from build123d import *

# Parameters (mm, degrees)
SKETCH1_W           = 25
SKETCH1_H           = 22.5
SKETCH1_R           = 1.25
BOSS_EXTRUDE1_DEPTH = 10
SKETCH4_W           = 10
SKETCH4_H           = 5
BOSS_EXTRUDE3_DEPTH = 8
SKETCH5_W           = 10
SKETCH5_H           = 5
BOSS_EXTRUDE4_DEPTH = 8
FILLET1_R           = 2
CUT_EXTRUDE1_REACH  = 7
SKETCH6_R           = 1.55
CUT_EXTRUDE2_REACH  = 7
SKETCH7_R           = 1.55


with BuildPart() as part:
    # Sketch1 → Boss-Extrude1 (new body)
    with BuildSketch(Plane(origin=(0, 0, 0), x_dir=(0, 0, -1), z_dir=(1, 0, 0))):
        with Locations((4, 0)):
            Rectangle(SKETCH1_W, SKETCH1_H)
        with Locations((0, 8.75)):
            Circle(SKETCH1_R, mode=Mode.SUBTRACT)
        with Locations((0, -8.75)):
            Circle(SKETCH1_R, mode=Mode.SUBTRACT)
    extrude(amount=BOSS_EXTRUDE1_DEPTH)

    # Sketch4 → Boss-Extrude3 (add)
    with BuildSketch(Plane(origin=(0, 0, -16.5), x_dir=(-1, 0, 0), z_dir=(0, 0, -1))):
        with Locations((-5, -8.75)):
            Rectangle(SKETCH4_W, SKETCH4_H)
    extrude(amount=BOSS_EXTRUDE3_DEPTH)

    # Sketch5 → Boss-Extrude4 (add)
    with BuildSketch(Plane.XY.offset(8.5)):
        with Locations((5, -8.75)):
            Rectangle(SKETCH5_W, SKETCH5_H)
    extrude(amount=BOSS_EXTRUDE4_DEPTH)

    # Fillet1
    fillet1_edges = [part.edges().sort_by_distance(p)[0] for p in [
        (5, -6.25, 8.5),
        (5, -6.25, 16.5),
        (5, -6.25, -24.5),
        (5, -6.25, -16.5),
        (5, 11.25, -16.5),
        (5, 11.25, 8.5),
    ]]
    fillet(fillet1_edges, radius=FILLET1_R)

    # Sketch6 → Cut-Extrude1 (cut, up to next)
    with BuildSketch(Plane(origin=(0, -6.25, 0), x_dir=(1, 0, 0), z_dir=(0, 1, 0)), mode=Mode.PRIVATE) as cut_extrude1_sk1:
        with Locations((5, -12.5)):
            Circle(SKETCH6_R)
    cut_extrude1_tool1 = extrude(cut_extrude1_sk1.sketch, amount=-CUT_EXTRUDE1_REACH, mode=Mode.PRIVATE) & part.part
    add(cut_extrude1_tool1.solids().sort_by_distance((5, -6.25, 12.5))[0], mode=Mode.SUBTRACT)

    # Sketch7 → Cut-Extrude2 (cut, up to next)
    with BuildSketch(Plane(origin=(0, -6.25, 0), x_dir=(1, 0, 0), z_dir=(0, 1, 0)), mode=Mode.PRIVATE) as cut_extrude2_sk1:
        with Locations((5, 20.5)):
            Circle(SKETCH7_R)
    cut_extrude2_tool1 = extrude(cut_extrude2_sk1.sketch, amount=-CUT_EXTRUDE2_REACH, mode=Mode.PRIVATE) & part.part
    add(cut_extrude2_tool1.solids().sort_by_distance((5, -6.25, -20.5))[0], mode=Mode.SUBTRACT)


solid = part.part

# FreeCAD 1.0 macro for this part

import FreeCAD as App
import Part
import Sketcher
Q = App.Units.Quantity


def edges_at(feature, points):
    """Names of the edges that pass closest to the given points."""
    edges = feature.Shape.Edges
    near = lambda p: min(range(len(edges)), key=lambda i: edges[i].distToShape(Part.Vertex(*p))[0])
    return sorted({f"Edge{near(p) + 1}" for p in points})


def add_polygon(sketch, points):
    """Adds a closed chain of lines whose ends are joined by coincident constraints."""
    first, n = sketch.GeometryCount, len(points)
    for a, b in zip(points, points[1:] + points[:1]):
        sketch.addGeometry(Part.LineSegment(App.Vector(*a, 0), App.Vector(*b, 0)), False)
    for i in range(n):
        sketch.addConstraint(Sketcher.Constraint("Coincident", first + i, 2, first + (i + 1) % n, 1))

doc = App.newDocument("Part")
body = doc.addObject("PartDesign::Body", "Body")

# Sketch on YZ plane
sketch1 = body.newObject("Sketcher::SketchObject", "Sketch")
sketch1.AttachmentSupport = (doc.getObject("YZ_Plane"), [""])
sketch1.MapMode = "FlatFace"
add_polygon(sketch1, [(11.25, 8.5), (-11.25, 8.5), (-11.25, -16.5), (11.25, -16.5)])  # lines 0-3
sketch1.addGeometry(Part.Circle(App.Vector(-8.75, 0, 0), App.Vector(0, 0, 1), 1.25), False)  # 4
sketch1.addGeometry(Part.Circle(App.Vector(8.75, 0, 0), App.Vector(0, 0, 1), 1.25), False)  # 5
sketch1.addConstraint([
    Sketcher.Constraint("Horizontal", 0),
    Sketcher.Constraint("Vertical", 1),
    Sketcher.Constraint("Horizontal", 2),
    Sketcher.Constraint("Vertical", 3),
    Sketcher.Constraint("Equal", 4, 5),
    Sketcher.Constraint("Symmetric", 4, 3, 5, 3, -1, 1),
    Sketcher.Constraint("PointOnObject", 4, 3, -1),
    Sketcher.Constraint("Diameter", 4, Q("2.5 mm")),
    Sketcher.Constraint("DistanceY", 1, 2, 1, 1, Q("25 mm")),
    Sketcher.Constraint("DistanceX", 0, 2, 0, 1, Q("22.5 mm")),
    Sketcher.Constraint("DistanceX", 0, 2, 5, 3, Q("20 mm")),
    Sketcher.Constraint("DistanceX", 4, 3, 2, 2, Q("20 mm")),
    Sketcher.Constraint("DistanceY", -1, 1, 0, 2, Q("8.5 mm")),
])
pad1 = body.newObject("PartDesign::Pad", "Pad")
pad1.Profile = sketch1
pad1.Length = 10

# Sketch on XY plane
sketch2 = body.newObject("Sketcher::SketchObject", "Sketch001")
sketch2.AttachmentSupport = (doc.getObject("XY_Plane"), [""])
sketch2.MapMode = "FlatFace"
sketch2.AttachmentOffset = App.Placement(App.Vector(0, 0, -16.5), App.Rotation())
add_polygon(sketch2, [(10, -6.25), (10, -11.25), (0, -11.25), (0, -6.25)])  # lines 0-3
sketch2.addConstraint([
    Sketcher.Constraint("Vertical", 0),
    Sketcher.Constraint("Horizontal", 1),
    Sketcher.Constraint("Vertical", 2),
    Sketcher.Constraint("Horizontal", 3),
    Sketcher.Constraint("PointOnObject", 1, 2, -2),
    Sketcher.Constraint("DistanceX", 1, 2, 1, 1, Q("10 mm")),
    Sketcher.Constraint("DistanceY", 0, 2, 0, 1, Q("5 mm")),
    Sketcher.Constraint("DistanceY", 0, 2, -1, 1, Q("11.25 mm")),
])
pad2 = body.newObject("PartDesign::Pad", "Pad001")
pad2.Profile = sketch2
pad2.Length = 8
pad2.Reversed = True

# Sketch on XY plane
sketch3 = body.newObject("Sketcher::SketchObject", "Sketch002")
sketch3.AttachmentSupport = (doc.getObject("XY_Plane"), [""])
sketch3.MapMode = "FlatFace"
sketch3.AttachmentOffset = App.Placement(App.Vector(0, 0, 8.5), App.Rotation())
add_polygon(sketch3, [(0, -6.25), (0, -11.25), (10, -11.25), (10, -6.25)])  # lines 0-3
sketch3.addConstraint([
    Sketcher.Constraint("Vertical", 0),
    Sketcher.Constraint("Horizontal", 1),
    Sketcher.Constraint("Vertical", 2),
    Sketcher.Constraint("Horizontal", 3),
    Sketcher.Constraint("PointOnObject", 0, 2, -2),
    Sketcher.Constraint("DistanceX", 1, 1, 1, 2, Q("10 mm")),
    Sketcher.Constraint("DistanceY", 0, 2, 0, 1, Q("5 mm")),
    Sketcher.Constraint("DistanceY", 0, 2, -1, 1, Q("11.25 mm")),
])
pad3 = body.newObject("PartDesign::Pad", "Pad002")
pad3.Profile = sketch3
pad3.Length = 8
doc.recompute()

fillet = body.newObject("PartDesign::Fillet", "Fillet")
fillet.Base = (pad3, edges_at(pad3, [
    (5, -6.25, 8.5),
    (5, -6.25, 16.5),
    (5, -6.25, -24.5),
    (5, -6.25, -16.5),
    (5, 11.25, -16.5),
    (5, 11.25, 8.5),
]))
fillet.Radius = 2

# Sketch on XZ plane
sketch4 = body.newObject("Sketcher::SketchObject", "Sketch003")
sketch4.AttachmentSupport = (doc.getObject("XZ_Plane"), [""])
sketch4.MapMode = "FlatFace"
sketch4.AttachmentOffset = App.Placement(App.Vector(0, 0, 6.25), App.Rotation())
sketch4.addGeometry(Part.Circle(App.Vector(5, 12.5, 0), App.Vector(0, 0, 1), 1.55), False)
sketch4.addConstraint([
    Sketcher.Constraint("Diameter", 0, Q("3.1 mm")),
    Sketcher.Constraint("DistanceX", -1, 1, 0, 3, Q("5 mm")),
    Sketcher.Constraint("DistanceY", -1, 1, 0, 3, Q("12.5 mm")),
])
pocket1 = body.newObject("PartDesign::Pocket", "Pocket")
pocket1.Profile = sketch4
pocket1.Type = "UpToFirst"
pocket1.Reversed = True

# Sketch on XZ plane
sketch5 = body.newObject("Sketcher::SketchObject", "Sketch004")
sketch5.AttachmentSupport = (doc.getObject("XZ_Plane"), [""])
sketch5.MapMode = "FlatFace"
sketch5.AttachmentOffset = App.Placement(App.Vector(0, 0, 6.25), App.Rotation())
sketch5.addGeometry(Part.Circle(App.Vector(5, -20.5, 0), App.Vector(0, 0, 1), 1.55), False)
sketch5.addConstraint([
    Sketcher.Constraint("Diameter", 0, Q("3.1 mm")),
    Sketcher.Constraint("DistanceX", -1, 1, 0, 3, Q("5 mm")),
    Sketcher.Constraint("DistanceY", 0, 3, -1, 1, Q("20.5 mm")),
])
pocket2 = body.newObject("PartDesign::Pocket", "Pocket001")
pocket2.Profile = sketch5
pocket2.Type = "UpToFirst"
pocket2.Reversed = True

doc.recompute()
